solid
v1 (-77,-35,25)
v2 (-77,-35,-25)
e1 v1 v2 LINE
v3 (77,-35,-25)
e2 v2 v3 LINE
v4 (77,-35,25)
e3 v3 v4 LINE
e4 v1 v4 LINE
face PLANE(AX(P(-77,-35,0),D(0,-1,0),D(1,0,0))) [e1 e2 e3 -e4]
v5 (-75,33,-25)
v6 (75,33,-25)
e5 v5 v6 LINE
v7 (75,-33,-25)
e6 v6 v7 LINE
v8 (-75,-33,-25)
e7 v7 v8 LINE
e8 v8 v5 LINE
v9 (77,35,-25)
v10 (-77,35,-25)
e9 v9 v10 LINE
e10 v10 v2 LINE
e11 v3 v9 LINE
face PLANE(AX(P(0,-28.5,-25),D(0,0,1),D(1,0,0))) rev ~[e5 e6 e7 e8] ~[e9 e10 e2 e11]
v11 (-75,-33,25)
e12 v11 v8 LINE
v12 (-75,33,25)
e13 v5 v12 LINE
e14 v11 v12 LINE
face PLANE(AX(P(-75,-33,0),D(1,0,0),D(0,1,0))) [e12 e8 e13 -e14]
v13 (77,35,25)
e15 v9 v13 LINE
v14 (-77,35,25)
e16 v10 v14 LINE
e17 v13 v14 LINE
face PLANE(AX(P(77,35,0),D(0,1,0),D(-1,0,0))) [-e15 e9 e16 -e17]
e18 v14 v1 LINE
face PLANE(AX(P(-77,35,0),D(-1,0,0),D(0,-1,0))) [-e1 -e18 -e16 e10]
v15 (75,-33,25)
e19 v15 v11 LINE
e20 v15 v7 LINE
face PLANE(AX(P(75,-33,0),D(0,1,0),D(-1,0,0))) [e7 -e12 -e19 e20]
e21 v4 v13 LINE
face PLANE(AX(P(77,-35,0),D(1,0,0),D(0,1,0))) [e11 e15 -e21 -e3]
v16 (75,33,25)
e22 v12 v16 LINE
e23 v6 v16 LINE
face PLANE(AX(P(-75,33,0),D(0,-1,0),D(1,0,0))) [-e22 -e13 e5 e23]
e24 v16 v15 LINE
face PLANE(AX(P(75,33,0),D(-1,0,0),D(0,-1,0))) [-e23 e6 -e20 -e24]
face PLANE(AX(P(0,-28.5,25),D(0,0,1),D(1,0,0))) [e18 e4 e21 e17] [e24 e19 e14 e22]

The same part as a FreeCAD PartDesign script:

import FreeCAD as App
import Part
import Sketcher

V = App.Vector
Q = App.Units.Quantity

doc = App.newDocument("Part")
body = doc.addObject("PartDesign::Body", "Body")

# Sketch on XY plane
sketch1 = body.newObject("Sketcher::SketchObject", "Sketch")
sketch1.AttachmentSupport = (doc.getObject("XY_Plane"), [""])
sketch1.MapMode = "FlatFace"
sketch1.addGeometry(Part.LineSegment(V(-77, -35, 0), V(77, -35, 0)), False)
sketch1.addGeometry(Part.LineSegment(V(77, -35, 0), V(77, 35, 0)), False)
sketch1.addGeometry(Part.LineSegment(V(77, 35, 0), V(-77, 35, 0)), False)
sketch1.addGeometry(Part.LineSegment(V(-77, 35, 0), V(-77, -35, 0)), False)
sketch1.addGeometry(Part.LineSegment(V(-75, -33, 0), V(-75, 33, 0)), False)
sketch1.addGeometry(Part.LineSegment(V(-75, 33, 0), V(75, 33, 0)), False)
sketch1.addGeometry(Part.LineSegment(V(75, 33, 0), V(75, -33, 0)), False)
sketch1.addGeometry(Part.LineSegment(V(75, -33, 0), V(-75, -33, 0)), False)
sketch1.addConstraint(Sketcher.Constraint("Coincident", 0, 2, 1, 1))
sketch1.addConstraint(Sketcher.Constraint("Coincident", 1, 2, 2, 1))
sketch1.addConstraint(Sketcher.Constraint("Coincident", 2, 2, 3, 1))
sketch1.addConstraint(Sketcher.Constraint("Coincident", 3, 2, 0, 1))
sketch1.addConstraint(Sketcher.Constraint("Coincident", 4, 2, 5, 1))
sketch1.addConstraint(Sketcher.Constraint("Coincident", 5, 2, 6, 1))
sketch1.addConstraint(Sketcher.Constraint("Coincident", 6, 2, 7, 1))
sketch1.addConstraint(Sketcher.Constraint("Coincident", 7, 2, 4, 1))
sketch1.addConstraint(Sketcher.Constraint("Horizontal", 0))
sketch1.addConstraint(Sketcher.Constraint("Vertical", 1))
sketch1.addConstraint(Sketcher.Constraint("Horizontal", 2))
sketch1.addConstraint(Sketcher.Constraint("Vertical", 3))
sketch1.addConstraint(Sketcher.Constraint("Vertical", 4))
sketch1.addConstraint(Sketcher.Constraint("Horizontal", 5))
sketch1.addConstraint(Sketcher.Constraint("Vertical", 6))
sketch1.addConstraint(Sketcher.Constraint("Horizontal", 7))
sketch1.addConstraint(Sketcher.Constraint("Symmetric", 0, 2, 2, 2, -1, 1))
sketch1.addConstraint(Sketcher.Constraint("Symmetric", 4, 2, 6, 2, -1, 1))
sketch1.addConstraint(Sketcher.Constraint("DistanceX", 0, 1, 0, 2, Q("154 mm")))
sketch1.addConstraint(Sketcher.Constraint("DistanceX", 5, 1, 5, 2, Q("150 mm")))
sketch1.addConstraint(Sketcher.Constraint("DistanceY", 1, 1, 1, 2, Q("70 mm")))
sketch1.addConstraint(Sketcher.Constraint("DistanceY", 4, 1, 4, 2, Q("66 mm")))
pad1 = body.newObject("PartDesign::Pad", "Pad")
pad1.Profile = sketch1
pad1.Length = 50
pad1.Midplane = True

doc.recompute()
